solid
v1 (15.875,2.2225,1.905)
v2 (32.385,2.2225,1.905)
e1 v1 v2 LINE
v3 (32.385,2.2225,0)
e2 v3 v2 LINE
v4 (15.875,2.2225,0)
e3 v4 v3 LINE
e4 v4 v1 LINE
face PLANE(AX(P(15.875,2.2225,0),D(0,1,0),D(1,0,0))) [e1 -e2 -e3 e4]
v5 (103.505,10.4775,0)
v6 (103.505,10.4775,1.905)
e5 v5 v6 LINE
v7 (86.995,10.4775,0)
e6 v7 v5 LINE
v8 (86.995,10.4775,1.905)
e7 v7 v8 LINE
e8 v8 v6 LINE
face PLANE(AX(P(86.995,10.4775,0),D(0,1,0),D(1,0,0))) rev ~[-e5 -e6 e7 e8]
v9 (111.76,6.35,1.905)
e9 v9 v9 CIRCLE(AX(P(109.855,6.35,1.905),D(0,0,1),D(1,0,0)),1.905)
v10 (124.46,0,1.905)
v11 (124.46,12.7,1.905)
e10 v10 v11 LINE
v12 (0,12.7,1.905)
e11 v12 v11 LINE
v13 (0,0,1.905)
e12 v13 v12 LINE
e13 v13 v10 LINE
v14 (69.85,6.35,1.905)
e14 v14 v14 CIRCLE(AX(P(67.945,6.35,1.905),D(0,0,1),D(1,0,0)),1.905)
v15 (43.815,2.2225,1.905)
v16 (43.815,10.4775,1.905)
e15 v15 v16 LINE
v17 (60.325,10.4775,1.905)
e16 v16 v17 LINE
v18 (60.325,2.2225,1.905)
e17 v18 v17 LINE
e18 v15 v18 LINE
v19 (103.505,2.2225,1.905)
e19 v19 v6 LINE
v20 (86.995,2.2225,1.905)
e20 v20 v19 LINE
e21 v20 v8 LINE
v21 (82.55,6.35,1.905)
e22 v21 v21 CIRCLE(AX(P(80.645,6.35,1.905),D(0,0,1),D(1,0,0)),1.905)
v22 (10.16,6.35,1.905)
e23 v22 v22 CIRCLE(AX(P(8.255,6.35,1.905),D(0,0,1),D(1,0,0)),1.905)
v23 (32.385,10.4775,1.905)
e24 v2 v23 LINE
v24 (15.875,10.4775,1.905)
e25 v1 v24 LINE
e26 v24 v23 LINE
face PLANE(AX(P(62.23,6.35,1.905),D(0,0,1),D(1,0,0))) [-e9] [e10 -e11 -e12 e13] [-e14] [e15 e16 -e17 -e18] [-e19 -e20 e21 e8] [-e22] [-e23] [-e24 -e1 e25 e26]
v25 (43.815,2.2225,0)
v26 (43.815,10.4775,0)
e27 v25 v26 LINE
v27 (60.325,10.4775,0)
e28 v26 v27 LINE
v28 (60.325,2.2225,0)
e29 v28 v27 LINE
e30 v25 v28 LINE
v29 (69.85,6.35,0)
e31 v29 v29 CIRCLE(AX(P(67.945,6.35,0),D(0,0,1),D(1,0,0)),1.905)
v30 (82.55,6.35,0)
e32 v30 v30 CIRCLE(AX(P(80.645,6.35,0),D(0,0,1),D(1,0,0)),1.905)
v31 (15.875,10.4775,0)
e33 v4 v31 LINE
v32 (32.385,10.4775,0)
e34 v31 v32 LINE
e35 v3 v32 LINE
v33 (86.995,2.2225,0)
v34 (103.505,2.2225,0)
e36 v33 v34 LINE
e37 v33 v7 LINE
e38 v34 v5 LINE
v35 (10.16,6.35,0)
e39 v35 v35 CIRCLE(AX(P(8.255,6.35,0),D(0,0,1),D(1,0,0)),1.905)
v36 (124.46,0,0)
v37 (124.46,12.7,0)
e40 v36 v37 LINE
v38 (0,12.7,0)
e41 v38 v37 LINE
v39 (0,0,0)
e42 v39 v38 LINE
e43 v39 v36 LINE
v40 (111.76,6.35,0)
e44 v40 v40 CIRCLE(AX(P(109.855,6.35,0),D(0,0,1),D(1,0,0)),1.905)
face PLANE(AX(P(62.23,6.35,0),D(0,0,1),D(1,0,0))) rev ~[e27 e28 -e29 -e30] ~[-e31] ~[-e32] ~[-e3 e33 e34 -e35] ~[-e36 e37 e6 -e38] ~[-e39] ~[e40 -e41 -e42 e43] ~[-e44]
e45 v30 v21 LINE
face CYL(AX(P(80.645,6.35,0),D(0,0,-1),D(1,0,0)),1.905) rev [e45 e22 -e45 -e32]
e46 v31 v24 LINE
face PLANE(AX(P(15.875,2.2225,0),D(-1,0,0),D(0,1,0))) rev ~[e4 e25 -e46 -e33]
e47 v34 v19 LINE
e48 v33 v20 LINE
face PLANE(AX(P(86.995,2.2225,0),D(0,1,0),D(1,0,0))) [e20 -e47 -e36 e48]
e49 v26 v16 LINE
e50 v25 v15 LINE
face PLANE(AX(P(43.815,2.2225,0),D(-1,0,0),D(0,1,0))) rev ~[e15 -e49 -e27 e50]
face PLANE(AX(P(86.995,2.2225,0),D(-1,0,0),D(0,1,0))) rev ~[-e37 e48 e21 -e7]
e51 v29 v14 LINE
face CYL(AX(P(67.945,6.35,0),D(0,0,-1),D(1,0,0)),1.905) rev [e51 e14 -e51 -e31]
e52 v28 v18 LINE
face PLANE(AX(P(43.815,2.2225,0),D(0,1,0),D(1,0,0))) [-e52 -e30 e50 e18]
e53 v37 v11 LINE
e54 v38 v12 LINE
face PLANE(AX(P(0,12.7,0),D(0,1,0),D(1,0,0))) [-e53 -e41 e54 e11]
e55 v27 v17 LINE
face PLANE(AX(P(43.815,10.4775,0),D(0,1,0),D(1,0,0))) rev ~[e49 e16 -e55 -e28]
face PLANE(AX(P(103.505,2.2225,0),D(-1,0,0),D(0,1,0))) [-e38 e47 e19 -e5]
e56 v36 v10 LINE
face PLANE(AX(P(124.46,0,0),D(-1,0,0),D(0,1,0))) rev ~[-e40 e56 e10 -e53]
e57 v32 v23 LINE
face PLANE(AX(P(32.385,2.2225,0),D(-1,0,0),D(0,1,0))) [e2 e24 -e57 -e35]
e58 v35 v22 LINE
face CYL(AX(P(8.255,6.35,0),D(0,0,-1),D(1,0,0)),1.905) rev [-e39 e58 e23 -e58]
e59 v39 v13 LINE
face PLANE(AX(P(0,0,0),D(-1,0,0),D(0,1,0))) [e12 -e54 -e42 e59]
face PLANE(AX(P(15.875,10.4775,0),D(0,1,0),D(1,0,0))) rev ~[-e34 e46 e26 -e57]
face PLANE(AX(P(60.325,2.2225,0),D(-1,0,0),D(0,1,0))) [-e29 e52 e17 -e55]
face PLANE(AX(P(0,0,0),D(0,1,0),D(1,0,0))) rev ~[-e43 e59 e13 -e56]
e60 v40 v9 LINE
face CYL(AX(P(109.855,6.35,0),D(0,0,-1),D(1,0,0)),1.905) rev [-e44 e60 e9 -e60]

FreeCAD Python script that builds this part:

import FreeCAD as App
import Part
import Sketcher
from FreeCAD import Vector
Q = App.Units.Quantity

doc = App.newDocument("Part")
params = doc.addObject("Spreadsheet::Sheet", "Params")
for row, (alias, value) in enumerate([
    ("sketch1_diameter", "0.15 in"),
    ("sketch1_width", "4.9 in"),
    ("sketch1_height", "0.5 in"),
    ("sketch1_width2", "0.65 in"),
    ("sketch1_height2", "0.325 in"),
    ("pad1_length", "0.075 in"),
], start=1):
    params.set(f"A{row}", alias)
    params.set(f"B{row}", "=" + value)
    params.setAlias(f"B{row}", alias)

body = doc.addObject("PartDesign::Body", "Body")

# Sketch on XY plane
sketch1 = body.newObject("Sketcher::SketchObject", "Sketch")
sketch1.AttachmentSupport = (doc.getObject("XY_Plane"), [""])
sketch1.MapMode = "FlatFace"
sketch1.addGeometry(Part.LineSegment(Vector(0, 12.7, 0), Vector(0, 0, 0)), False)
sketch1.addGeometry(Part.LineSegment(Vector(0, 0, 0), Vector(124.5, 0, 0)), False)
sketch1.addGeometry(Part.LineSegment(Vector(124.5, 0, 0), Vector(124.5, 12.7, 0)), False)
sketch1.addGeometry(Part.LineSegment(Vector(124.5, 12.7, 0), Vector(0, 12.7, 0)), False)
sketch1.addGeometry(Part.Circle(Vector(8.3, 6.3, 0), Vector(0, 0, 1), 1.9), False)
sketch1.addGeometry(Part.LineSegment(Vector(32.4, 2.2, 0), Vector(15.9, 2.2, 0)), False)
sketch1.addGeometry(Part.LineSegment(Vector(15.9, 2.2, 0), Vector(15.9, 10.5, 0)), False)
sketch1.addGeometry(Part.LineSegment(Vector(15.9, 10.5, 0), Vector(32.4, 10.5, 0)), False)
sketch1.addGeometry(Part.LineSegment(Vector(32.4, 10.5, 0), Vector(32.4, 2.2, 0)), False)
sketch1.addGeometry(Part.LineSegment(Vector(60.3, 2.2, 0), Vector(43.8, 2.2, 0)), False)
sketch1.addGeometry(Part.LineSegment(Vector(43.8, 2.2, 0), Vector(43.8, 10.5, 0)), False)
sketch1.addGeometry(Part.LineSegment(Vector(43.8, 10.5, 0), Vector(60.3, 10.5, 0)), False)
sketch1.addGeometry(Part.LineSegment(Vector(60.3, 10.5, 0), Vector(60.3, 2.2, 0)), False)
sketch1.addGeometry(Part.Circle(Vector(67.9, 6.3, 0), Vector(0, 0, 1), 1.9), False)
sketch1.addGeometry(Part.Circle(Vector(80.6, 6.3, 0), Vector(0, 0, 1), 1.9), False)
sketch1.addGeometry(Part.LineSegment(Vector(103.5, 2.2, 0), Vector(87, 2.2, 0)), False)
sketch1.addGeometry(Part.LineSegment(Vector(87, 2.2, 0), Vector(87, 10.5, 0)), False)
sketch1.addGeometry(Part.LineSegment(Vector(87, 10.5, 0), Vector(103.5, 10.5, 0)), False)
sketch1.addGeometry(Part.LineSegment(Vector(103.5, 10.5, 0), Vector(103.5, 2.2, 0)), False)
sketch1.addGeometry(Part.Circle(Vector(109.9, 6.3, 0), Vector(0, 0, 1), 1.9), False)
sketch1.addConstraint(Sketcher.Constraint("Coincident", 0, 2, 1, 1))
sketch1.addConstraint(Sketcher.Constraint("Coincident", 1, 2, 2, 1))
sketch1.addConstraint(Sketcher.Constraint("Coincident", 2, 2, 3, 1))
sketch1.addConstraint(Sketcher.Constraint("Coincident", 3, 2, 0, 1))
sketch1.addConstraint(Sketcher.Constraint("Coincident", 5, 2, 6, 1))
sketch1.addConstraint(Sketcher.Constraint("Coincident", 6, 2, 7, 1))
sketch1.addConstraint(Sketcher.Constraint("Coincident", 7, 2, 8, 1))
sketch1.addConstraint(Sketcher.Constraint("Coincident", 8, 2, 5, 1))
sketch1.addConstraint(Sketcher.Constraint("Coincident", 9, 2, 10, 1))
sketch1.addConstraint(Sketcher.Constraint("Coincident", 10, 2, 11, 1))
sketch1.addConstraint(Sketcher.Constraint("Coincident", 11, 2, 12, 1))
sketch1.addConstraint(Sketcher.Constraint("Coincident", 12, 2, 9, 1))
sketch1.addConstraint(Sketcher.Constraint("Coincident", 15, 2, 16, 1))
sketch1.addConstraint(Sketcher.Constraint("Coincident", 16, 2, 17, 1))
sketch1.addConstraint(Sketcher.Constraint("Coincident", 17, 2, 18, 1))
sketch1.addConstraint(Sketcher.Constraint("Coincident", 18, 2, 15, 1))
sketch1.addConstraint(Sketcher.Constraint("Vertical", 0))
sketch1.addConstraint(Sketcher.Constraint("Horizontal", 1))
sketch1.addConstraint(Sketcher.Constraint("Vertical", 2))
sketch1.addConstraint(Sketcher.Constraint("Horizontal", 3))
sketch1.addConstraint(Sketcher.Constraint("Horizontal", 5))
sketch1.addConstraint(Sketcher.Constraint("Vertical", 6))
sketch1.addConstraint(Sketcher.Constraint("Horizontal", 7))
sketch1.addConstraint(Sketcher.Constraint("Vertical", 8))
sketch1.addConstraint(Sketcher.Constraint("Horizontal", 9))
sketch1.addConstraint(Sketcher.Constraint("Vertical", 10))
sketch1.addConstraint(Sketcher.Constraint("Horizontal", 11))
sketch1.addConstraint(Sketcher.Constraint("Vertical", 12))
sketch1.addConstraint(Sketcher.Constraint("Horizontal", 15))
sketch1.addConstraint(Sketcher.Constraint("Vertical", 16))
sketch1.addConstraint(Sketcher.Constraint("Horizontal", 17))
sketch1.addConstraint(Sketcher.Constraint("Vertical", 18))
sketch1.addConstraint(Sketcher.Constraint("Coincident", 0, 2, -1, 1))
sketch1.addConstraint(Sketcher.Constraint("Equal", 4, 13))
sketch1.addConstraint(Sketcher.Constraint("Equal", 13, 14))
sketch1.addConstraint(Sketcher.Constraint("Equal", 14, 19))
sketch1.addConstraint(Sketcher.Constraint("Horizontal", 4, 3, 13, 3))
sketch1.addConstraint(Sketcher.Constraint("Horizontal", 13, 3, 14, 3))
sketch1.addConstraint(Sketcher.Constraint("Horizontal", 14, 3, 19, 3))
sketch1.addConstraint(Sketcher.Constraint("Horizontal", 8, 2, 9, 2))
sketch1.addConstraint(Sketcher.Constraint("Horizontal", 7, 2, 10, 2))
sketch1.addConstraint(Sketcher.Constraint("Horizontal", 12, 2, 15, 2))
sketch1.addConstraint(Sketcher.Constraint("Horizontal", 11, 2, 16, 2))
sketch1.addConstraint(Sketcher.Constraint("Equal", 7, 9))
sketch1.addConstraint(Sketcher.Constraint("Equal", 11, 15))
sketch1.addConstraint(Sketcher.Constraint("Diameter", 4, Q("0.15 in")))
sketch1.addConstraint(Sketcher.Constraint("DistanceX", 1, 1, 1, 2, Q("4.9 in")))
sketch1.addConstraint(Sketcher.Constraint("DistanceY", 0, 2, 0, 1, Q("0.5 in")))
sketch1.addConstraint(Sketcher.Constraint("DistanceX", 4, 3, 19, 3, Q("4 in")))
sketch1.addConstraint(Sketcher.Constraint("DistanceX", 5, 2, 5, 1, Q("0.65 in")))
sketch1.addConstraint(Sketcher.Constraint("DistanceX", 13, 3, 14, 3, Q("0.5 in")))
sketch1.addConstraint(Sketcher.Constraint("DistanceX", 4, 3, 5, 2, Q("0.3 in")))
sketch1.addConstraint(Sketcher.Constraint("DistanceX", 5, 2, 9, 2, Q("1.1 in")))
sketch1.addConstraint(Sketcher.Constraint("DistanceX", 11, 2, 13, 3, Q("0.3 in")))
sketch1.addConstraint(Sketcher.Constraint("DistanceX", 15, 2, 19, 3, Q("0.9 in")))
sketch1.addConstraint(Sketcher.Constraint("DistanceY", 6, 1, 6, 2, Q("0.325 in")))
sketch1.addConstraint(Sketcher.Constraint("DistanceY", -1, 1, 4, 3, Q("0.25 in")))
sketch1.addConstraint(Sketcher.Constraint("DistanceX", -1, 1, 4, 3, Q("0.325 in")))
sketch1.addConstraint(Sketcher.Constraint("DistanceY", -1, 1, 5, 2, Q("0.0875 in")))
sketch1.setExpression("Constraints[45]", "Params.sketch1_diameter")
sketch1.setExpression("Constraints[46]", "Params.sketch1_width")
sketch1.setExpression("Constraints[47]", "Params.sketch1_height")
sketch1.setExpression("Constraints[49]", "Params.sketch1_width2")
sketch1.setExpression("Constraints[55]", "Params.sketch1_height2")
pad1 = body.newObject("PartDesign::Pad", "Pad")
pad1.Profile = sketch1
pad1.setExpression("Length", "Params.pad1_length")

doc.recompute()
